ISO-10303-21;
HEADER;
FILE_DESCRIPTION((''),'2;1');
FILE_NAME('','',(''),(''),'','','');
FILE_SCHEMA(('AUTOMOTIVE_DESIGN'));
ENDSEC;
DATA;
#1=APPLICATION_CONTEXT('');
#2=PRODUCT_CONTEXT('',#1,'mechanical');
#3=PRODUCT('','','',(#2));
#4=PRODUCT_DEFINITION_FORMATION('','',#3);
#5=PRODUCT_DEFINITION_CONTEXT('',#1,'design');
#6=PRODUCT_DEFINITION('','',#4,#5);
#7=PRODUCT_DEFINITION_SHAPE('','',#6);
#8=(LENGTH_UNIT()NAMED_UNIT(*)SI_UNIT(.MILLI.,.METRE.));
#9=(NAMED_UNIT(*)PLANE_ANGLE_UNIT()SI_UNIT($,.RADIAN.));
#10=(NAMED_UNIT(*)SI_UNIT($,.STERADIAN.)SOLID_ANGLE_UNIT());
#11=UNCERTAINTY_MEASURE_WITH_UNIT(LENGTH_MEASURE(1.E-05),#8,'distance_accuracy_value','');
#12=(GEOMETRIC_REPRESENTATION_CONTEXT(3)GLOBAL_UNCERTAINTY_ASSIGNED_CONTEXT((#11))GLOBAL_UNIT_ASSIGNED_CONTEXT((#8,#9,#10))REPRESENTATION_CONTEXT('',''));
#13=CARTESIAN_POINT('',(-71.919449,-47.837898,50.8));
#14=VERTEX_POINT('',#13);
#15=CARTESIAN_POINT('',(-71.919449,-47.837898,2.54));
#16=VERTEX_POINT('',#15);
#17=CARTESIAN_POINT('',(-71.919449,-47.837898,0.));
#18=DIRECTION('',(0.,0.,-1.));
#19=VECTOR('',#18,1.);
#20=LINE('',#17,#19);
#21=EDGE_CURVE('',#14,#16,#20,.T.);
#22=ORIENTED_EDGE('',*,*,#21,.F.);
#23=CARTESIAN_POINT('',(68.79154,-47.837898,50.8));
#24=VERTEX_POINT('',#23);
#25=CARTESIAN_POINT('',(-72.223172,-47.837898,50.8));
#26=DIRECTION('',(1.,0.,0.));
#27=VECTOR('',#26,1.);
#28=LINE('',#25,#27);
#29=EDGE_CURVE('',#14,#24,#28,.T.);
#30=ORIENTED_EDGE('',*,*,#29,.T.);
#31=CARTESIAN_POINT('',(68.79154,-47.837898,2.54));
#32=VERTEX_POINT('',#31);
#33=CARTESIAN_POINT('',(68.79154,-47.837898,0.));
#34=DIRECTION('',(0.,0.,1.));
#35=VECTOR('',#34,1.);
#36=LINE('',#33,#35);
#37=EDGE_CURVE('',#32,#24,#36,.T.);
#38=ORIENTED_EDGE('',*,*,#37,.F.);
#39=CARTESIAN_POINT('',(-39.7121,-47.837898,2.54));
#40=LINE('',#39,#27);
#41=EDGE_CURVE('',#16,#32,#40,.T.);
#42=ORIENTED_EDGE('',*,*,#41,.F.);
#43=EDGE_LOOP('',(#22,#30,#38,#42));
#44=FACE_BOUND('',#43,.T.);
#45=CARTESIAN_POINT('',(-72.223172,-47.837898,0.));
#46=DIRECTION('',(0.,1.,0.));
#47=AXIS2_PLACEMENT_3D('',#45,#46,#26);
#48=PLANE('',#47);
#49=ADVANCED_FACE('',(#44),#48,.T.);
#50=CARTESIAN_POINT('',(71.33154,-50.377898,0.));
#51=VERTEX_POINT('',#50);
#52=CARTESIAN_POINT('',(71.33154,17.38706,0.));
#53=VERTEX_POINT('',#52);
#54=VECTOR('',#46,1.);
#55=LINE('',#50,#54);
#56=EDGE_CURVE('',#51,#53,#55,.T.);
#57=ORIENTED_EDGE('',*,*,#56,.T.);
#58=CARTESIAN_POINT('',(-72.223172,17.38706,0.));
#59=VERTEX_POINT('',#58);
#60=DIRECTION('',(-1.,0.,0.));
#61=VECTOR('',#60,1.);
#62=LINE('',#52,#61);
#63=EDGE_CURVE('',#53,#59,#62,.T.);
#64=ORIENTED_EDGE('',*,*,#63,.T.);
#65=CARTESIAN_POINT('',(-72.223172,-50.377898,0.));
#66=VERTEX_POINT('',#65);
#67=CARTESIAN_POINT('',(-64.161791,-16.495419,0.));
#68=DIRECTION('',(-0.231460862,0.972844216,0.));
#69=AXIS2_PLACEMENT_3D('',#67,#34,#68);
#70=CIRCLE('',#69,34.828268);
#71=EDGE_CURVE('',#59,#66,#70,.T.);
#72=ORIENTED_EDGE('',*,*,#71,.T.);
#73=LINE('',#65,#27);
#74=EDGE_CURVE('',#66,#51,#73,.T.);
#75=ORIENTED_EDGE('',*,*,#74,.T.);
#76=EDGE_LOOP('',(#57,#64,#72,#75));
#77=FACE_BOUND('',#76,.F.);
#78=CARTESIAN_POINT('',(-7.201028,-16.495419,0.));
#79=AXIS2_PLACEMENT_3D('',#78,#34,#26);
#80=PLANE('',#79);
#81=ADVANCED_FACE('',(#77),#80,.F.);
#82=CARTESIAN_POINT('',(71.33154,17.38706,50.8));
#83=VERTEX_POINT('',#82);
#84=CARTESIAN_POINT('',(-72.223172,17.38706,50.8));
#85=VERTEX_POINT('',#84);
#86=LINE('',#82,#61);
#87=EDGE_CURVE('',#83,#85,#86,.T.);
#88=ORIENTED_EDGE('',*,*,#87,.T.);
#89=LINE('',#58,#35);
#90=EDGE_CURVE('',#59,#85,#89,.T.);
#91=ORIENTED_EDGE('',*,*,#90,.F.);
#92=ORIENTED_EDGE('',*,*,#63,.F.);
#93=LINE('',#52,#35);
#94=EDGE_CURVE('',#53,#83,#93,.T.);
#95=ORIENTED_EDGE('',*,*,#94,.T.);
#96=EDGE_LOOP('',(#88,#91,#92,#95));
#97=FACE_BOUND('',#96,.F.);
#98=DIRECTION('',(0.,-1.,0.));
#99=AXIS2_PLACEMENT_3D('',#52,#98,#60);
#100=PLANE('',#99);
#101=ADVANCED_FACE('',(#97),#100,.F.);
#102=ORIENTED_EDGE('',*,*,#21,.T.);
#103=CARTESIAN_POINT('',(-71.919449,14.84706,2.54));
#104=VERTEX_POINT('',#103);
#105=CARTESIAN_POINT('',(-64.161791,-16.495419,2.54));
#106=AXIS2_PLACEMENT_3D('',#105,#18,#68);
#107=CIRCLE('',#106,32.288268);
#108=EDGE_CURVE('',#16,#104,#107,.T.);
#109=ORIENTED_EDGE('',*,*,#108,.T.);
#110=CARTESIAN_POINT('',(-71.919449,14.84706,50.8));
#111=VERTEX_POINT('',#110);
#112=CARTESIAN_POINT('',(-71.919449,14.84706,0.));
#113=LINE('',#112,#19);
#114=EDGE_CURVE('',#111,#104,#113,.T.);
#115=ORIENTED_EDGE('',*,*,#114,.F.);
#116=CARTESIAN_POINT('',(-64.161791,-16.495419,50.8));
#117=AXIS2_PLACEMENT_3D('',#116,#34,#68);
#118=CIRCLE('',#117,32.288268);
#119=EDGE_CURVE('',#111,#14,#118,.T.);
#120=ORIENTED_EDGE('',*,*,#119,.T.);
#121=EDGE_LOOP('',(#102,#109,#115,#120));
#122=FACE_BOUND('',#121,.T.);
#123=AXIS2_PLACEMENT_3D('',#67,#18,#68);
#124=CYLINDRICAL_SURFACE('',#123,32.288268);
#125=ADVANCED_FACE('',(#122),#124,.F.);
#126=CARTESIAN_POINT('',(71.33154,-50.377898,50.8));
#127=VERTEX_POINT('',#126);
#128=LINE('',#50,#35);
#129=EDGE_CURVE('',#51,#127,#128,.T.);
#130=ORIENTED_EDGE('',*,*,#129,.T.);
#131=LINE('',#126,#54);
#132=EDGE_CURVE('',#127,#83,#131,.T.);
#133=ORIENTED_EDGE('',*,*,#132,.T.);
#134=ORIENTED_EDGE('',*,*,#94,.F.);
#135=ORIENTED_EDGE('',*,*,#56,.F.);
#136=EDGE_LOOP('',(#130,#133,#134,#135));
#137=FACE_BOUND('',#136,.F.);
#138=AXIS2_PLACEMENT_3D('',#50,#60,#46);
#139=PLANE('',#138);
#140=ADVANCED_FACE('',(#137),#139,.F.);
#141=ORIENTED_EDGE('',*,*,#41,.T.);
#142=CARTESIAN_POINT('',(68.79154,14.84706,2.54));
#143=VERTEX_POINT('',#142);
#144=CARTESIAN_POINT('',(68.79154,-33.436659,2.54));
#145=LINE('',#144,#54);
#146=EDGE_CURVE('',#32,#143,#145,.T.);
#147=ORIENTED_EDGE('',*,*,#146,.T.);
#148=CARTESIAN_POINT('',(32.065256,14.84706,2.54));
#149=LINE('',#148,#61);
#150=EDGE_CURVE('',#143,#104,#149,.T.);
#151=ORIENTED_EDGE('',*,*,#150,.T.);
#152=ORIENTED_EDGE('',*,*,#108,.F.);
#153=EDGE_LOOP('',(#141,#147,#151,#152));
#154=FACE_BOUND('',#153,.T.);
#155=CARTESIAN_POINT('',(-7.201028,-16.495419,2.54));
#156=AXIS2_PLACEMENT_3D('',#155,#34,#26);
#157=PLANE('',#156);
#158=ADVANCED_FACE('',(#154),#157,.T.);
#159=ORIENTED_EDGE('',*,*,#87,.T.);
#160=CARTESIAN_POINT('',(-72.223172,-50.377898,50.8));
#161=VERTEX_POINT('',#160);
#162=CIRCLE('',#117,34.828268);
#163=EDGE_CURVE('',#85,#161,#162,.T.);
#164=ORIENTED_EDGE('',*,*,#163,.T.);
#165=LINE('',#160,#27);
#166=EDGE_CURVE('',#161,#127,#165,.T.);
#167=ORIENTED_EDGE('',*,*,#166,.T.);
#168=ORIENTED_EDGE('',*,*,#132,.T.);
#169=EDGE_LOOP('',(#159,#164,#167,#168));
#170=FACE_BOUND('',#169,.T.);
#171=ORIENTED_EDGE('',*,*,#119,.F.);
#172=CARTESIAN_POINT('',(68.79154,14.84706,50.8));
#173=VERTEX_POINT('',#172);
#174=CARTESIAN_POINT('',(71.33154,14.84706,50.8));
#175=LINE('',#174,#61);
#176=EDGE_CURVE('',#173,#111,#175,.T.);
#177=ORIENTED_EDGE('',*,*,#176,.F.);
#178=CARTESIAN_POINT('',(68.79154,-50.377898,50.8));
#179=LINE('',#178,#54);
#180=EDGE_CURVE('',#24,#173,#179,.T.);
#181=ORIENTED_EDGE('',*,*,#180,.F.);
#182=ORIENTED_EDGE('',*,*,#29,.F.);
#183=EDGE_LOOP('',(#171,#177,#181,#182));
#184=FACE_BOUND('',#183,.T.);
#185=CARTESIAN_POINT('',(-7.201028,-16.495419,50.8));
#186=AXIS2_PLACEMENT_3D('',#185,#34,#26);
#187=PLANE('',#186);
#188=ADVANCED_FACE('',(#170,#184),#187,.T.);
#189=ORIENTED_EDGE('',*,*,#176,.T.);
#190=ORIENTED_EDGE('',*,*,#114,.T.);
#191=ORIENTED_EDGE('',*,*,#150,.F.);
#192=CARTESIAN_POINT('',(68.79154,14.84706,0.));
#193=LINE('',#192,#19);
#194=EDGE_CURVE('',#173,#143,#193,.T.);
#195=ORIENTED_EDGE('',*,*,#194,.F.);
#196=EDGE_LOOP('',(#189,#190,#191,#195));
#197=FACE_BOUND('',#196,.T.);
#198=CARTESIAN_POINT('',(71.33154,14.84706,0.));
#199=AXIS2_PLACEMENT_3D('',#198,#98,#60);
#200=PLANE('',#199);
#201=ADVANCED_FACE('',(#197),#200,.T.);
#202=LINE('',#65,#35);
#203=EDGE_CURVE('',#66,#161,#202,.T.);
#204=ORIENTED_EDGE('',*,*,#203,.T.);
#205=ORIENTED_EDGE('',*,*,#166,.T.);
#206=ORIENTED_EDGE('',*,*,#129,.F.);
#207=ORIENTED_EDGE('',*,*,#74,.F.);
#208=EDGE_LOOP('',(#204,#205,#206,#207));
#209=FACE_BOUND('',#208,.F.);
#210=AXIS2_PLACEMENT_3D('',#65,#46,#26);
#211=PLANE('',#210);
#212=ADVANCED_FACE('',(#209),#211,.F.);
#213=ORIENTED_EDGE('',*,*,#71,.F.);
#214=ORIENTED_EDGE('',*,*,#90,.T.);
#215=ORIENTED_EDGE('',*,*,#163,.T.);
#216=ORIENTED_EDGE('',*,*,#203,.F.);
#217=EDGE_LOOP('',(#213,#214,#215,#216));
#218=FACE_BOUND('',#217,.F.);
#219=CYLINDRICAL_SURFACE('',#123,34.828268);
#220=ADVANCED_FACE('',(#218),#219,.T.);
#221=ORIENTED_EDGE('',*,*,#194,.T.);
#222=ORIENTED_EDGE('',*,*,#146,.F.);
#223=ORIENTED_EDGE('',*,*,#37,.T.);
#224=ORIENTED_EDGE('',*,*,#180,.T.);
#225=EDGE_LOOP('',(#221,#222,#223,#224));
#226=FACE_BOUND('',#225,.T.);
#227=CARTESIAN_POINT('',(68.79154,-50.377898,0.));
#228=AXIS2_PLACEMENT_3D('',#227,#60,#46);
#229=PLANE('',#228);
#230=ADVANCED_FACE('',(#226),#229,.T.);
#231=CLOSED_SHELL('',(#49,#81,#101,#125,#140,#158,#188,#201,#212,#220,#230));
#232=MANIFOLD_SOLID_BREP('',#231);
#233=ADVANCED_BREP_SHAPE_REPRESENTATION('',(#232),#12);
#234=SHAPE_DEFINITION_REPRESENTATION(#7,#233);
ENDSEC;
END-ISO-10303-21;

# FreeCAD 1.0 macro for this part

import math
import FreeCAD as App
import Part
import Sketcher

V = App.Vector
Q = App.Units.Quantity


def faces_at(feature, points):
    """Names of the faces that lie closest to the given points."""
    faces = feature.Shape.Faces
    near = lambda p: min(range(len(faces)), key=lambda i: faces[i].distToShape(Part.Vertex(*p))[0])
    return sorted({f"Face{near(p) + 1}" for p in points})

doc = App.newDocument("Part")
body = doc.addObject("PartDesign::Body", "Body")

sketch1 = doc.addObject("Sketcher::SketchObject", "Sketch")
body.addObject(sketch1)
sketch1.AttachmentSupport = (doc.XY_Plane, [""])
sketch1.MapMode = "FlatFace"
sketch1.addGeometry([
    Part.LineSegment(V(71, 17, 0), V(-72, 17, 0)),
    Part.ArcOfCircle(Part.Circle(V(-64, -16, 0), V(0, 0, 1), 35), math.radians(103), math.radians(257)),
    Part.LineSegment(V(-72, -50, 0), V(71, -50, 0)),
    Part.LineSegment(V(71, -50, 0), V(71, 17, 0)),
], False)
sketch1.addConstraint([
    Sketcher.Constraint("Coincident", 0, 2, 1, 1),
    Sketcher.Constraint("Coincident", 1, 2, 2, 1),
    Sketcher.Constraint("Coincident", 2, 2, 3, 1),
    Sketcher.Constraint("Coincident", 3, 2, 0, 1),
    Sketcher.Constraint("Horizontal", 0),
    Sketcher.Constraint("Horizontal", 2),
    Sketcher.Constraint("Vertical", 3),
    Sketcher.Constraint("Vertical", 0, 2, 1, 2),
    Sketcher.Constraint("Radius", 1, 34.828268),
    Sketcher.Constraint("DistanceX", 0, 2, 0, 1, 143.554712),
    Sketcher.Constraint("DistanceY", 3, 1, 3, 2, 67.764958),
    Sketcher.Constraint("DistanceY", 2, 2, -1, 1, 50.377898),
    Sketcher.Constraint("DistanceX", 1, 3, -1, 1, 64.161791),
])
pad1 = doc.addObject("PartDesign::Pad", "Pad")
body.addObject(pad1)
pad1.Profile = sketch1
pad1.Length = Q("2 in")
doc.recompute()

thickness = doc.addObject("PartDesign::Thickness", "Thickness")
body.addObject(thickness)
thickness.Base = (pad1, faces_at(pad1, [(-13.829, -16.495, 50.8)]))
thickness.Value = Q("0.1 in")
thickness.Reversed = True
thickness.Join = "Arc"

doc.recompute()
